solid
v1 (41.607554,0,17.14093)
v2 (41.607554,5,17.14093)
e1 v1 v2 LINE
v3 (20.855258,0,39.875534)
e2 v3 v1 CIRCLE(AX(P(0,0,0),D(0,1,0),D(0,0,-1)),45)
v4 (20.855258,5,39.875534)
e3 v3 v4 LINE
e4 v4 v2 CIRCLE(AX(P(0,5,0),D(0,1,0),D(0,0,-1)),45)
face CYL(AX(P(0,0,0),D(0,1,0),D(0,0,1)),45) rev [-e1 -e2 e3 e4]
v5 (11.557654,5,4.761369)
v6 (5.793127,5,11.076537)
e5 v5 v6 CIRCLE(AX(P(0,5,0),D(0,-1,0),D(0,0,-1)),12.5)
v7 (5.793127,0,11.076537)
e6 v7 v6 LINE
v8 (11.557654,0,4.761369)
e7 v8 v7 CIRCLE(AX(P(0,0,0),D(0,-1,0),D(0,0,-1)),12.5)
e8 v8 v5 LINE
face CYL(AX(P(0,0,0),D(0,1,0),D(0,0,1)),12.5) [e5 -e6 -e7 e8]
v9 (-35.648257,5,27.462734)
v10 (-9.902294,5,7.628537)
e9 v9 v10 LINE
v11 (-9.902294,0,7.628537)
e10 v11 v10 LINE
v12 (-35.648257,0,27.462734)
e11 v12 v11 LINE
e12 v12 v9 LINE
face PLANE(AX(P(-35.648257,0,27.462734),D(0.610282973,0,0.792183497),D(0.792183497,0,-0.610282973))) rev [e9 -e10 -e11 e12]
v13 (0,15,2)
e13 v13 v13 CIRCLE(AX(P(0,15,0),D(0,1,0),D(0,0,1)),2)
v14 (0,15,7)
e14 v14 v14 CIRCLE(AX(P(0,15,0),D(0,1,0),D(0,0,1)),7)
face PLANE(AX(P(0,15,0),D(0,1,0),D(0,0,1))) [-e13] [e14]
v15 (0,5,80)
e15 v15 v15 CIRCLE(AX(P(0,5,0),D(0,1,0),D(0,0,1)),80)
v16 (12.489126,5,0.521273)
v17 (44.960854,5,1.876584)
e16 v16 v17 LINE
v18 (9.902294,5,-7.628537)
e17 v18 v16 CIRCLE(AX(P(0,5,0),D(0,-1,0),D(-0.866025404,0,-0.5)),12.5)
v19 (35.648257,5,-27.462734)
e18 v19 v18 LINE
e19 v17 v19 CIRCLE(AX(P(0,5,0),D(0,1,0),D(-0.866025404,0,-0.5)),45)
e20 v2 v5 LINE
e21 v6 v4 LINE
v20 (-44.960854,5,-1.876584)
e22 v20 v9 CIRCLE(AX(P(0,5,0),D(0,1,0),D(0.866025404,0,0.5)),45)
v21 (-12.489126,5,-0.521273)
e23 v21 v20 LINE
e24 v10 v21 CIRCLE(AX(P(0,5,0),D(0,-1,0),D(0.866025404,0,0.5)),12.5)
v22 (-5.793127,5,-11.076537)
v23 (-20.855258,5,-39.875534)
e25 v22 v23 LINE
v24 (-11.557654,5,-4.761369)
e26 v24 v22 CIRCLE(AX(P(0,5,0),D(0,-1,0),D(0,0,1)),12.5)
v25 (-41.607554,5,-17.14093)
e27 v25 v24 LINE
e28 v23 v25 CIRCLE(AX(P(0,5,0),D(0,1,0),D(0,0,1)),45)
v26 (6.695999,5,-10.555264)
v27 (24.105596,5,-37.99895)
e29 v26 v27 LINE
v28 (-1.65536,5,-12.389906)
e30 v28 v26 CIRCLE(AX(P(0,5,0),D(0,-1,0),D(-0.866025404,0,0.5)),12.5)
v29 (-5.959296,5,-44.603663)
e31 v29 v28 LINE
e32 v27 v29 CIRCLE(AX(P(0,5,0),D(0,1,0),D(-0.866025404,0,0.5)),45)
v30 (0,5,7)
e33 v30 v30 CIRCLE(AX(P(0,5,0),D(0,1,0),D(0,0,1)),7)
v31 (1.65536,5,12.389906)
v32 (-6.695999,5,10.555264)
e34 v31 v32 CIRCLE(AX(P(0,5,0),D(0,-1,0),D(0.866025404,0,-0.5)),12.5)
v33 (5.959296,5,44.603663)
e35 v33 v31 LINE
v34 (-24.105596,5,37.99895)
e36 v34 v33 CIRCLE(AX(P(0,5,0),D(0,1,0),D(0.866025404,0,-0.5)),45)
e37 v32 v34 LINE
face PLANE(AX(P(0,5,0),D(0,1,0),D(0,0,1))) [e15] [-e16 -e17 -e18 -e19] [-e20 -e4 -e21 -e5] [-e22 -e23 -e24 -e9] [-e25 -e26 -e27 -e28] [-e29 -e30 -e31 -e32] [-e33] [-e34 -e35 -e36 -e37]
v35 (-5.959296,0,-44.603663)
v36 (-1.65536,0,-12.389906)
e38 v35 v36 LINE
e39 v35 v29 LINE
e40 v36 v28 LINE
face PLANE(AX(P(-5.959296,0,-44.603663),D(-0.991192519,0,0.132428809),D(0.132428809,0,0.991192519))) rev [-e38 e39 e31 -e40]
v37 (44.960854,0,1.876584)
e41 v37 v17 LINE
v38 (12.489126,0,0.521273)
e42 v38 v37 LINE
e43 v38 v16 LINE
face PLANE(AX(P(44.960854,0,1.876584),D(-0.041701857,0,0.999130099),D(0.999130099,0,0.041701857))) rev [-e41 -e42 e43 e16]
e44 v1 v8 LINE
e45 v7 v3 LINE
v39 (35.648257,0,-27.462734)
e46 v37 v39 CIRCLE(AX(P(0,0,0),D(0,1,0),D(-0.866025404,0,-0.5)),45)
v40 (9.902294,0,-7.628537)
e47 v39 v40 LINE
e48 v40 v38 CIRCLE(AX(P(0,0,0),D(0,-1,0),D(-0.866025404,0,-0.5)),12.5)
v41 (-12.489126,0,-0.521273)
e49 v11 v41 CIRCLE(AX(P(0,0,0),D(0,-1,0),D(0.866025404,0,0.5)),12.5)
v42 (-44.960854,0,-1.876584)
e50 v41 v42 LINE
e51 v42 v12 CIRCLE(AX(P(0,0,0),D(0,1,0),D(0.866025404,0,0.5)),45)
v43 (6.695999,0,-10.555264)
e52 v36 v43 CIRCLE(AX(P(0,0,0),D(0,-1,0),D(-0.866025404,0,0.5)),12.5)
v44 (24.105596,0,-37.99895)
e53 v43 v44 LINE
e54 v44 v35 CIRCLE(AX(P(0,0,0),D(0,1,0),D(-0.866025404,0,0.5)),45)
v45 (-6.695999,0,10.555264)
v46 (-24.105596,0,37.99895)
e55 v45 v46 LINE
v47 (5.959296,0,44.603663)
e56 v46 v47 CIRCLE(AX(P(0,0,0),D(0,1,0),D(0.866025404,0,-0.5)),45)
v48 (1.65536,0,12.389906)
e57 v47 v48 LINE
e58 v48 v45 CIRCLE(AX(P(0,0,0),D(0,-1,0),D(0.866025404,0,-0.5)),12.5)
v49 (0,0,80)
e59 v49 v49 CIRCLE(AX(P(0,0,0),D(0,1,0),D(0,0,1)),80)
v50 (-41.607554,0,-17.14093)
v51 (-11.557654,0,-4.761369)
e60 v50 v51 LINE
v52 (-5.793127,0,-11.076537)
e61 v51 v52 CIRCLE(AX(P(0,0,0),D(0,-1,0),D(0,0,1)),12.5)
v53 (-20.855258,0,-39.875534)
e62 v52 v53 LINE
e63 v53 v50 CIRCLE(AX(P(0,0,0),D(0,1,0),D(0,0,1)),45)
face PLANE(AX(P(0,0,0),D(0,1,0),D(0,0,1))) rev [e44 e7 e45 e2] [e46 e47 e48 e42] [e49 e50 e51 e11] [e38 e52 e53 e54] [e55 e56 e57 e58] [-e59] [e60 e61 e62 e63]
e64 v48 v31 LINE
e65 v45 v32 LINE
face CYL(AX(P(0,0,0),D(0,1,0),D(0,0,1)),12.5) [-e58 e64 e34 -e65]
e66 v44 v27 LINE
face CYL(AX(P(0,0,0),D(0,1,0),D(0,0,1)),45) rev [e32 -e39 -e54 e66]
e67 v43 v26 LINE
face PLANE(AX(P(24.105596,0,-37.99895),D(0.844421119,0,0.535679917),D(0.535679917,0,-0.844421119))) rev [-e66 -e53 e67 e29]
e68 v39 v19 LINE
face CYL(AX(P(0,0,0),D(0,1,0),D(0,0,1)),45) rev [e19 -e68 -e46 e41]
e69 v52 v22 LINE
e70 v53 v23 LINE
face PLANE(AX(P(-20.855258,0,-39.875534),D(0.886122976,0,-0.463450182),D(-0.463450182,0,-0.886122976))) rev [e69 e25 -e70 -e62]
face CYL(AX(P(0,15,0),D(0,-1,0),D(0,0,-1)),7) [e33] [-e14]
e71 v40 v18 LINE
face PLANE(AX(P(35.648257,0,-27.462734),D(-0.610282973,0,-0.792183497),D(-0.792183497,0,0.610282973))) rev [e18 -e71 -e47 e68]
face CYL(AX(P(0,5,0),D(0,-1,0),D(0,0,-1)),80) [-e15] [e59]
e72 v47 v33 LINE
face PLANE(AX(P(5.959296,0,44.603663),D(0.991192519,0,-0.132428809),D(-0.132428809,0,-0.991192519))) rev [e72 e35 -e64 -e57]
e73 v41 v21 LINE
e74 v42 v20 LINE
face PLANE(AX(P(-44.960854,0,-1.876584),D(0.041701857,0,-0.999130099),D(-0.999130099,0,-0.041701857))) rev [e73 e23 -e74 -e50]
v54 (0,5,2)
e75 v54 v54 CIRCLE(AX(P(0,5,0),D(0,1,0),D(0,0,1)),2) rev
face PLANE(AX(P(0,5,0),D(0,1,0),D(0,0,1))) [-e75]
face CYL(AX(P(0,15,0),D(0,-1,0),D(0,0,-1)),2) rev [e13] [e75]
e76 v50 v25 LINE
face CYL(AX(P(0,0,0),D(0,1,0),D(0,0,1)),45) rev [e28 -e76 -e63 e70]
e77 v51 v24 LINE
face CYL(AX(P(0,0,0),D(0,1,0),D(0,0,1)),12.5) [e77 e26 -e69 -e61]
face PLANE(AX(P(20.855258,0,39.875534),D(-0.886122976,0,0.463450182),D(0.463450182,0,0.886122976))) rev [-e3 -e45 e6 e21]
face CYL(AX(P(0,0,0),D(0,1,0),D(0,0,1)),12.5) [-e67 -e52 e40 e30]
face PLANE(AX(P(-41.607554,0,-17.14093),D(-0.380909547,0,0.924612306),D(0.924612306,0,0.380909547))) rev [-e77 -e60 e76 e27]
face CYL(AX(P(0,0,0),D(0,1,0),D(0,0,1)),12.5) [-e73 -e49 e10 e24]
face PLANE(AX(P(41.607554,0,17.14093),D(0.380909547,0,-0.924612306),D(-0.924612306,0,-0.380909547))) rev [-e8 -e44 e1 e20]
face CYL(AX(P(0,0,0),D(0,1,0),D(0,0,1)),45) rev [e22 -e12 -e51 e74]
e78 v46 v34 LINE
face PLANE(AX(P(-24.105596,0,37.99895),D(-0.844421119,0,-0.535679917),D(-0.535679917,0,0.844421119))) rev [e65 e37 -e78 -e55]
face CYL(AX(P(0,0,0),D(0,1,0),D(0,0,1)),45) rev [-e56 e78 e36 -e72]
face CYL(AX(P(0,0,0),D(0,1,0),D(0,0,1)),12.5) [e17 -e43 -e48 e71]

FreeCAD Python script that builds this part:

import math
import FreeCAD as App
import Part
import Sketcher
Q = App.Units.Quantity

doc = App.newDocument("Part")
body = doc.addObject("PartDesign::Body", "Body")

# Sketch on XZ plane
sketch1 = body.newObject("Sketcher::SketchObject", "Sketch")
sketch1.AttachmentSupport = (doc.getObject("XZ_Plane"), [""])
sketch1.MapMode = "FlatFace"
sketch1.addGeometry(Part.Circle(App.Vector(0, 0, 0), App.Vector(0, 0, 1), 80), False)
sketch1.addConstraint([
    Sketcher.Constraint("Coincident", 0, 3, -1, 1),
    Sketcher.Constraint("Diameter", 0, Q("160 mm")),
])
pad1 = body.newObject("PartDesign::Pad", "Pad")
pad1.Profile = sketch1
pad1.Length = 5
pad1.Reversed = True

# Sketch on XZ plane
sketch2 = body.newObject("Sketcher::SketchObject", "Sketch001")
sketch2.AttachmentSupport = (doc.getObject("XZ_Plane"), [""])
sketch2.MapMode = "FlatFace"
sketch2.AttachmentOffset = App.Placement(App.Vector(0, 0, -5), App.Rotation())
sketch2.addGeometry([
    Part.LineSegment(App.Vector(-42, -17, 0), App.Vector(-12, -5, 0)),
    Part.ArcOfCircle(Part.Circle(App.Vector(0, 0, 0), App.Vector(0, 0, 1), 12), math.radians(-158), math.radians(-118)),
    Part.LineSegment(App.Vector(-6, -11, 0), App.Vector(-21, -40, 0)),
    Part.ArcOfCircle(Part.Circle(App.Vector(0, 0, 0), App.Vector(0, 0, 1), 45), math.radians(-158), math.radians(-118)),
], False)
sketch2.addConstraint([
    Sketcher.Constraint("Coincident", 0, 2, 1, 1),
    Sketcher.Constraint("Coincident", 1, 2, 2, 1),
    Sketcher.Constraint("Coincident", 2, 2, 3, 2),
    Sketcher.Constraint("Coincident", 3, 1, 0, 1),
    Sketcher.Constraint("Coincident", 1, 3, -1, 1),
    Sketcher.Constraint("Coincident", 3, 3, -1, 1),
    Sketcher.Constraint("Radius", 3, Q("45 mm")),
    Sketcher.Constraint("Radius", 1, Q("12.5 mm")),
    Sketcher.Constraint("DistanceX", 3, 1, 0, 2, Q("30.0499 mm")),
    Sketcher.Constraint("DistanceY", 0, 2, -1, 1, Q("4.761369 mm")),
    Sketcher.Constraint("DistanceX", 2, 2, -1, 1, Q("20.855258 mm")),
    Sketcher.Constraint("DistanceX", 2, 2, 1, 2, Q("15.062131 mm")),
])
pocket1 = body.newObject("PartDesign::Pocket", "Pocket")
pocket1.Profile = sketch2
pocket1.Type = "ThroughAll"
pocket1.Reversed = True
doc.recompute()

polarpattern = body.newObject("PartDesign::PolarPattern", "PolarPattern")
polarpattern.Originals = [pocket1]
polarpattern.Axis = (doc.getObject("Y_Axis"), [""])
polarpattern.Angle = 360
polarpattern.Occurrences = 6
body.Tip = polarpattern

# Sketch on XZ plane
sketch3 = body.newObject("Sketcher::SketchObject", "Sketch002")
sketch3.AttachmentSupport = (doc.getObject("XZ_Plane"), [""])
sketch3.MapMode = "FlatFace"
sketch3.AttachmentOffset = App.Placement(App.Vector(0, 0, -5), App.Rotation())
sketch3.addGeometry([
    Part.Circle(App.Vector(0, 0, 0), App.Vector(0, 0, 1), 7),
    Part.Circle(App.Vector(0, 0, 0), App.Vector(0, 0, 1), 2),
], False)
sketch3.addConstraint([
    Sketcher.Constraint("Coincident", 0, 3, -1, 1),
    Sketcher.Constraint("Coincident", 1, 3, -1, 1),
    Sketcher.Constraint("Diameter", 0, Q("14 mm")),
    Sketcher.Constraint("Diameter", 1, Q("4 mm")),
])
pad2 = body.newObject("PartDesign::Pad", "Pad001")
pad2.Profile = sketch3
pad2.Length = 10
pad2.Reversed = True

doc.recompute()
